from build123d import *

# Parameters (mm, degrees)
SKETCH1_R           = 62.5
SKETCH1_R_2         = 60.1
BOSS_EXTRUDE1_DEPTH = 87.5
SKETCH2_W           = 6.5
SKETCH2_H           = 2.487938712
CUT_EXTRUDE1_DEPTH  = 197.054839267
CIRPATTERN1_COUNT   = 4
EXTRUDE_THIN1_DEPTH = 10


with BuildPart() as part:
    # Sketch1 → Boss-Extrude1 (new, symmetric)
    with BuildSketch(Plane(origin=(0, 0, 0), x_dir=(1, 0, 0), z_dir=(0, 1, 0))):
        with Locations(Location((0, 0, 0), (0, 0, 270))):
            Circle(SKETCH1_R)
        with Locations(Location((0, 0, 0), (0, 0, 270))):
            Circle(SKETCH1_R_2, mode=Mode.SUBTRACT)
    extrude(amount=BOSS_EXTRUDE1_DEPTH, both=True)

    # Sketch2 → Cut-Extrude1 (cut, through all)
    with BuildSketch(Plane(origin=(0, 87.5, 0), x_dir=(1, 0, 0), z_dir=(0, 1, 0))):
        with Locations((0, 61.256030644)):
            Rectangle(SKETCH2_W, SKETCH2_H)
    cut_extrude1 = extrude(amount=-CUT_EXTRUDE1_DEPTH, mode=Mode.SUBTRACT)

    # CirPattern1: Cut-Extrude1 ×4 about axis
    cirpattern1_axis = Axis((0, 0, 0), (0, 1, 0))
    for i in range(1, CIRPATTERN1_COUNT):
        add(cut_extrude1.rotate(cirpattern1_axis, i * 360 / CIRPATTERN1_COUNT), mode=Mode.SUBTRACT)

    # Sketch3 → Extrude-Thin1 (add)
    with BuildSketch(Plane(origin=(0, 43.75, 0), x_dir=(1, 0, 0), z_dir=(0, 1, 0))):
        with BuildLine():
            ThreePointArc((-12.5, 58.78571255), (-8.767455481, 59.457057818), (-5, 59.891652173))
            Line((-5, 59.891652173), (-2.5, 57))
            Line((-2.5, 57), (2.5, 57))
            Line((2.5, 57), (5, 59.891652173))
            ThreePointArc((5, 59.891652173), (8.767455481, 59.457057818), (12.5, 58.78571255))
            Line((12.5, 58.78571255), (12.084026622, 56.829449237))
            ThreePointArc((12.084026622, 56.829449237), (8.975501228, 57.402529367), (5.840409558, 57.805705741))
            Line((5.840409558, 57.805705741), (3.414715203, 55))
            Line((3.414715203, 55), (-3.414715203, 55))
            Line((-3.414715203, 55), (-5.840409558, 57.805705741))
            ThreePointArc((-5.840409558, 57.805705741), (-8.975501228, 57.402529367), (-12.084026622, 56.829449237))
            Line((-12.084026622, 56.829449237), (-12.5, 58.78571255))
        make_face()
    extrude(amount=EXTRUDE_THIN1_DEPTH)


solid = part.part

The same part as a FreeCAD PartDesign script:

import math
import FreeCAD as App
import Part
import Sketcher
from FreeCAD import Vector
Q = App.Units.Quantity


def add_polygon(sketch, points):
    """Adds a closed chain of lines whose ends are joined by coincident constraints."""
    first, n = sketch.GeometryCount, len(points)
    for a, b in zip(points, points[1:] + points[:1]):
        sketch.addGeometry(Part.LineSegment(App.Vector(*a, 0), App.Vector(*b, 0)), False)
    for i in range(n):
        sketch.addConstraint(Sketcher.Constraint("Coincident", first + i, 2, first + (i + 1) % n, 1))

doc = App.newDocument("Part")
body = doc.addObject("PartDesign::Body", "Body")
body.AllowCompound = True

sketch1 = body.newObject("Sketcher::SketchObject", "Sketch")
sketch1.AttachmentSupport = (doc.getObject("XZ_Plane"), [""])
sketch1.MapMode = "FlatFace"
sketch1.addGeometry(Part.Circle(Vector(0, 0, 0), Vector(0, 0, 1), 62.5), False)
sketch1.addGeometry(Part.Circle(Vector(0, 0, 0), Vector(0, 0, 1), 60.1), False)
sketch1.addConstraint(Sketcher.Constraint("Coincident", 0, 3, -1, 1))
sketch1.addConstraint(Sketcher.Constraint("Coincident", 1, 3, -1, 1))
sketch1.addConstraint(Sketcher.Constraint("Diameter", 0, Q("125 mm")))
sketch1.addConstraint(Sketcher.Constraint("Diameter", 1, Q("120.2 mm")))
pad1 = body.newObject("PartDesign::Pad", "Pad")
pad1.Profile = sketch1
pad1.Length = 175
pad1.Midplane = True

sketch2 = body.newObject("Sketcher::SketchObject", "Sketch001")
sketch2.AttachmentSupport = (doc.getObject("XZ_Plane"), [""])
sketch2.MapMode = "FlatFace"
sketch2.AttachmentOffset = App.Placement(Vector(0, 0, -87.5), App.Rotation())
add_polygon(sketch2, [(-3.25, -62.5), (-3.25, -60.012061), (3.25, -60.012061), (3.25, -62.5)])
sketch2.addConstraint(Sketcher.Constraint("Vertical", 0))
sketch2.addConstraint(Sketcher.Constraint("Horizontal", 1))
sketch2.addConstraint(Sketcher.Constraint("Vertical", 2))
sketch2.addConstraint(Sketcher.Constraint("Horizontal", 3))
sketch2.addConstraint(Sketcher.Constraint("DistanceX", 1, 1, 1, 2, Q("6.5 mm")))
sketch2.addConstraint(Sketcher.Constraint("DistanceY", 2, 2, -1, 1, Q("62.5 mm")))
sketch2.addConstraint(Sketcher.Constraint("DistanceX", 0, 2, -1, 1, Q("3.25 mm")))
sketch2.addConstraint(Sketcher.Constraint("DistanceY", 0, 1, 0, 2, Q("2.487939 mm")))
pocket1 = body.newObject("PartDesign::Pocket", "Pocket")
pocket1.Profile = sketch2
pocket1.Type = "ThroughAll"
pocket1.Reversed = True
doc.recompute()

polarpattern = body.newObject("PartDesign::PolarPattern", "PolarPattern")
polarpattern.Originals = [pocket1]
polarpattern.Axis = (doc.getObject("Y_Axis"), [""])
polarpattern.Angle = 360
polarpattern.Occurrences = 4
body.Tip = polarpattern

sketch3 = body.newObject("Sketcher::SketchObject", "Sketch002")
sketch3.AttachmentSupport = (doc.getObject("XZ_Plane"), [""])
sketch3.MapMode = "FlatFace"
sketch3.AttachmentOffset = App.Placement(Vector(0, 0, -43.75), App.Rotation())
sketch3.addGeometry(Part.ArcOfCircle(Part.Circle(Vector(0, 0, 0), Vector(0, 0, 1), 60.1), math.radians(-102.004393), math.radians(-94.77222)), False)
sketch3.addGeometry(Part.LineSegment(Vector(-12.5, -58.785713, 0), Vector(-12.084027, -56.829449, 0)), False)
sketch3.addGeometry(Part.ArcOfCircle(Part.Circle(Vector(0, 0, 0), Vector(0, 0, 1), 58.1), math.radians(-102.004393), math.radians(-95.769311)), False)
sketch3.addGeometry(Part.LineSegment(Vector(-5.84041, -57.805706, 0), Vector(-3.414715, -55, 0)), False)
sketch3.addGeometry(Part.LineSegment(Vector(-3.414715, -55, 0), Vector(3.414715, -55, 0)), False)
sketch3.addGeometry(Part.LineSegment(Vector(3.414715, -55, 0), Vector(5.84041, -57.805706, 0)), False)
sketch3.addGeometry(Part.ArcOfCircle(Part.Circle(Vector(0, 0, 0), Vector(0, 0, 1), 58.1), math.radians(-84.230689), math.radians(-77.995607)), False)
sketch3.addGeometry(Part.LineSegment(Vector(12.084027, -56.829449, 0), Vector(12.5, -58.785713, 0)), False)
sketch3.addGeometry(Part.ArcOfCircle(Part.Circle(Vector(0, 0, 0), Vector(0, 0, 1), 60.1), math.radians(-85.22778), math.radians(-77.995607)), False)
sketch3.addGeometry(Part.LineSegment(Vector(5, -59.891652, 0), Vector(2.5, -57, 0)), False)
sketch3.addGeometry(Part.LineSegment(Vector(2.5, -57, 0), Vector(-2.5, -57, 0)), False)
sketch3.addGeometry(Part.LineSegment(Vector(-2.5, -57, 0), Vector(-5, -59.891652, 0)), False)
sketch3.addConstraint(Sketcher.Constraint("Coincident", 0, 1, 1, 1))
sketch3.addConstraint(Sketcher.Constraint("Coincident", 1, 2, 2, 1))
sketch3.addConstraint(Sketcher.Constraint("Coincident", 2, 2, 3, 1))
sketch3.addConstraint(Sketcher.Constraint("Coincident", 3, 2, 4, 1))
sketch3.addConstraint(Sketcher.Constraint("Coincident", 4, 2, 5, 1))
sketch3.addConstraint(Sketcher.Constraint("Coincident", 5, 2, 6, 1))
sketch3.addConstraint(Sketcher.Constraint("Coincident", 6, 2, 7, 1))
sketch3.addConstraint(Sketcher.Constraint("Coincident", 7, 2, 8, 2))
sketch3.addConstraint(Sketcher.Constraint("Coincident", 8, 1, 9, 1))
sketch3.addConstraint(Sketcher.Constraint("Coincident", 9, 2, 10, 1))
sketch3.addConstraint(Sketcher.Constraint("Coincident", 10, 2, 11, 1))
sketch3.addConstraint(Sketcher.Constraint("Coincident", 11, 2, 0, 2))
sketch3.addConstraint(Sketcher.Constraint("Horizontal", 4))
sketch3.addConstraint(Sketcher.Constraint("Horizontal", 10))
sketch3.addConstraint(Sketcher.Constraint("Coincident", 0, 3, -1, 1))
sketch3.addConstraint(Sketcher.Constraint("Coincident", 2, 3, -1, 1))
sketch3.addConstraint(Sketcher.Constraint("Coincident", 6, 3, -1, 1))
sketch3.addConstraint(Sketcher.Constraint("Coincident", 8, 3, -1, 1))
sketch3.addConstraint(Sketcher.Constraint("Equal", 2, 6))
sketch3.addConstraint(Sketcher.Constraint("Equal", 0, 8))
sketch3.addConstraint(Sketcher.Constraint("Parallel", 5, 9))
sketch3.addConstraint(Sketcher.Constraint("Parallel", 3, 11))
sketch3.addConstraint(Sketcher.Constraint("Horizontal", 2, 2, 5, 2))
sketch3.addConstraint(Sketcher.Constraint("Horizontal", 1, 2, 6, 2))
sketch3.addConstraint(Sketcher.Constraint("Horizontal", 0, 1, 7, 2))
sketch3.addConstraint(Sketcher.Constraint("Horizontal", 8, 1, 11, 2))
sketch3.addConstraint(Sketcher.Constraint("Equal", 3, 5))
sketch3.addConstraint(Sketcher.Constraint("Radius", 0, Q("60.1 mm")))
sketch3.addConstraint(Sketcher.Constraint("Radius", 2, Q("58.1 mm")))
sketch3.addConstraint(Sketcher.Constraint("DistanceX", 10, 2, 10, 1, Q("5 mm")))
sketch3.addConstraint(Sketcher.Constraint("DistanceY", 3, 2, -1, 1, Q("55 mm")))
sketch3.addConstraint(Sketcher.Constraint("DistanceX", -1, 1, 8, 1, Q("5 mm")))
sketch3.addConstraint(Sketcher.Constraint("DistanceY", 9, 2, -1, 1, Q("57 mm")))
sketch3.addConstraint(Sketcher.Constraint("DistanceX", 0, 1, -1, 1, Q("12.5 mm")))
sketch3.addConstraint(Sketcher.Constraint("DistanceX", 4, 1, 4, 2, Q("6.82943 mm")))
sketch3.addConstraint(Sketcher.Constraint("DistanceY", 1, 2, -1, 1, Q("56.829449 mm")))
pad2 = body.newObject("PartDesign::Pad", "Pad001")
pad2.Profile = sketch3
pad2.Length = 10
pad2.Reversed = True

doc.recompute()
